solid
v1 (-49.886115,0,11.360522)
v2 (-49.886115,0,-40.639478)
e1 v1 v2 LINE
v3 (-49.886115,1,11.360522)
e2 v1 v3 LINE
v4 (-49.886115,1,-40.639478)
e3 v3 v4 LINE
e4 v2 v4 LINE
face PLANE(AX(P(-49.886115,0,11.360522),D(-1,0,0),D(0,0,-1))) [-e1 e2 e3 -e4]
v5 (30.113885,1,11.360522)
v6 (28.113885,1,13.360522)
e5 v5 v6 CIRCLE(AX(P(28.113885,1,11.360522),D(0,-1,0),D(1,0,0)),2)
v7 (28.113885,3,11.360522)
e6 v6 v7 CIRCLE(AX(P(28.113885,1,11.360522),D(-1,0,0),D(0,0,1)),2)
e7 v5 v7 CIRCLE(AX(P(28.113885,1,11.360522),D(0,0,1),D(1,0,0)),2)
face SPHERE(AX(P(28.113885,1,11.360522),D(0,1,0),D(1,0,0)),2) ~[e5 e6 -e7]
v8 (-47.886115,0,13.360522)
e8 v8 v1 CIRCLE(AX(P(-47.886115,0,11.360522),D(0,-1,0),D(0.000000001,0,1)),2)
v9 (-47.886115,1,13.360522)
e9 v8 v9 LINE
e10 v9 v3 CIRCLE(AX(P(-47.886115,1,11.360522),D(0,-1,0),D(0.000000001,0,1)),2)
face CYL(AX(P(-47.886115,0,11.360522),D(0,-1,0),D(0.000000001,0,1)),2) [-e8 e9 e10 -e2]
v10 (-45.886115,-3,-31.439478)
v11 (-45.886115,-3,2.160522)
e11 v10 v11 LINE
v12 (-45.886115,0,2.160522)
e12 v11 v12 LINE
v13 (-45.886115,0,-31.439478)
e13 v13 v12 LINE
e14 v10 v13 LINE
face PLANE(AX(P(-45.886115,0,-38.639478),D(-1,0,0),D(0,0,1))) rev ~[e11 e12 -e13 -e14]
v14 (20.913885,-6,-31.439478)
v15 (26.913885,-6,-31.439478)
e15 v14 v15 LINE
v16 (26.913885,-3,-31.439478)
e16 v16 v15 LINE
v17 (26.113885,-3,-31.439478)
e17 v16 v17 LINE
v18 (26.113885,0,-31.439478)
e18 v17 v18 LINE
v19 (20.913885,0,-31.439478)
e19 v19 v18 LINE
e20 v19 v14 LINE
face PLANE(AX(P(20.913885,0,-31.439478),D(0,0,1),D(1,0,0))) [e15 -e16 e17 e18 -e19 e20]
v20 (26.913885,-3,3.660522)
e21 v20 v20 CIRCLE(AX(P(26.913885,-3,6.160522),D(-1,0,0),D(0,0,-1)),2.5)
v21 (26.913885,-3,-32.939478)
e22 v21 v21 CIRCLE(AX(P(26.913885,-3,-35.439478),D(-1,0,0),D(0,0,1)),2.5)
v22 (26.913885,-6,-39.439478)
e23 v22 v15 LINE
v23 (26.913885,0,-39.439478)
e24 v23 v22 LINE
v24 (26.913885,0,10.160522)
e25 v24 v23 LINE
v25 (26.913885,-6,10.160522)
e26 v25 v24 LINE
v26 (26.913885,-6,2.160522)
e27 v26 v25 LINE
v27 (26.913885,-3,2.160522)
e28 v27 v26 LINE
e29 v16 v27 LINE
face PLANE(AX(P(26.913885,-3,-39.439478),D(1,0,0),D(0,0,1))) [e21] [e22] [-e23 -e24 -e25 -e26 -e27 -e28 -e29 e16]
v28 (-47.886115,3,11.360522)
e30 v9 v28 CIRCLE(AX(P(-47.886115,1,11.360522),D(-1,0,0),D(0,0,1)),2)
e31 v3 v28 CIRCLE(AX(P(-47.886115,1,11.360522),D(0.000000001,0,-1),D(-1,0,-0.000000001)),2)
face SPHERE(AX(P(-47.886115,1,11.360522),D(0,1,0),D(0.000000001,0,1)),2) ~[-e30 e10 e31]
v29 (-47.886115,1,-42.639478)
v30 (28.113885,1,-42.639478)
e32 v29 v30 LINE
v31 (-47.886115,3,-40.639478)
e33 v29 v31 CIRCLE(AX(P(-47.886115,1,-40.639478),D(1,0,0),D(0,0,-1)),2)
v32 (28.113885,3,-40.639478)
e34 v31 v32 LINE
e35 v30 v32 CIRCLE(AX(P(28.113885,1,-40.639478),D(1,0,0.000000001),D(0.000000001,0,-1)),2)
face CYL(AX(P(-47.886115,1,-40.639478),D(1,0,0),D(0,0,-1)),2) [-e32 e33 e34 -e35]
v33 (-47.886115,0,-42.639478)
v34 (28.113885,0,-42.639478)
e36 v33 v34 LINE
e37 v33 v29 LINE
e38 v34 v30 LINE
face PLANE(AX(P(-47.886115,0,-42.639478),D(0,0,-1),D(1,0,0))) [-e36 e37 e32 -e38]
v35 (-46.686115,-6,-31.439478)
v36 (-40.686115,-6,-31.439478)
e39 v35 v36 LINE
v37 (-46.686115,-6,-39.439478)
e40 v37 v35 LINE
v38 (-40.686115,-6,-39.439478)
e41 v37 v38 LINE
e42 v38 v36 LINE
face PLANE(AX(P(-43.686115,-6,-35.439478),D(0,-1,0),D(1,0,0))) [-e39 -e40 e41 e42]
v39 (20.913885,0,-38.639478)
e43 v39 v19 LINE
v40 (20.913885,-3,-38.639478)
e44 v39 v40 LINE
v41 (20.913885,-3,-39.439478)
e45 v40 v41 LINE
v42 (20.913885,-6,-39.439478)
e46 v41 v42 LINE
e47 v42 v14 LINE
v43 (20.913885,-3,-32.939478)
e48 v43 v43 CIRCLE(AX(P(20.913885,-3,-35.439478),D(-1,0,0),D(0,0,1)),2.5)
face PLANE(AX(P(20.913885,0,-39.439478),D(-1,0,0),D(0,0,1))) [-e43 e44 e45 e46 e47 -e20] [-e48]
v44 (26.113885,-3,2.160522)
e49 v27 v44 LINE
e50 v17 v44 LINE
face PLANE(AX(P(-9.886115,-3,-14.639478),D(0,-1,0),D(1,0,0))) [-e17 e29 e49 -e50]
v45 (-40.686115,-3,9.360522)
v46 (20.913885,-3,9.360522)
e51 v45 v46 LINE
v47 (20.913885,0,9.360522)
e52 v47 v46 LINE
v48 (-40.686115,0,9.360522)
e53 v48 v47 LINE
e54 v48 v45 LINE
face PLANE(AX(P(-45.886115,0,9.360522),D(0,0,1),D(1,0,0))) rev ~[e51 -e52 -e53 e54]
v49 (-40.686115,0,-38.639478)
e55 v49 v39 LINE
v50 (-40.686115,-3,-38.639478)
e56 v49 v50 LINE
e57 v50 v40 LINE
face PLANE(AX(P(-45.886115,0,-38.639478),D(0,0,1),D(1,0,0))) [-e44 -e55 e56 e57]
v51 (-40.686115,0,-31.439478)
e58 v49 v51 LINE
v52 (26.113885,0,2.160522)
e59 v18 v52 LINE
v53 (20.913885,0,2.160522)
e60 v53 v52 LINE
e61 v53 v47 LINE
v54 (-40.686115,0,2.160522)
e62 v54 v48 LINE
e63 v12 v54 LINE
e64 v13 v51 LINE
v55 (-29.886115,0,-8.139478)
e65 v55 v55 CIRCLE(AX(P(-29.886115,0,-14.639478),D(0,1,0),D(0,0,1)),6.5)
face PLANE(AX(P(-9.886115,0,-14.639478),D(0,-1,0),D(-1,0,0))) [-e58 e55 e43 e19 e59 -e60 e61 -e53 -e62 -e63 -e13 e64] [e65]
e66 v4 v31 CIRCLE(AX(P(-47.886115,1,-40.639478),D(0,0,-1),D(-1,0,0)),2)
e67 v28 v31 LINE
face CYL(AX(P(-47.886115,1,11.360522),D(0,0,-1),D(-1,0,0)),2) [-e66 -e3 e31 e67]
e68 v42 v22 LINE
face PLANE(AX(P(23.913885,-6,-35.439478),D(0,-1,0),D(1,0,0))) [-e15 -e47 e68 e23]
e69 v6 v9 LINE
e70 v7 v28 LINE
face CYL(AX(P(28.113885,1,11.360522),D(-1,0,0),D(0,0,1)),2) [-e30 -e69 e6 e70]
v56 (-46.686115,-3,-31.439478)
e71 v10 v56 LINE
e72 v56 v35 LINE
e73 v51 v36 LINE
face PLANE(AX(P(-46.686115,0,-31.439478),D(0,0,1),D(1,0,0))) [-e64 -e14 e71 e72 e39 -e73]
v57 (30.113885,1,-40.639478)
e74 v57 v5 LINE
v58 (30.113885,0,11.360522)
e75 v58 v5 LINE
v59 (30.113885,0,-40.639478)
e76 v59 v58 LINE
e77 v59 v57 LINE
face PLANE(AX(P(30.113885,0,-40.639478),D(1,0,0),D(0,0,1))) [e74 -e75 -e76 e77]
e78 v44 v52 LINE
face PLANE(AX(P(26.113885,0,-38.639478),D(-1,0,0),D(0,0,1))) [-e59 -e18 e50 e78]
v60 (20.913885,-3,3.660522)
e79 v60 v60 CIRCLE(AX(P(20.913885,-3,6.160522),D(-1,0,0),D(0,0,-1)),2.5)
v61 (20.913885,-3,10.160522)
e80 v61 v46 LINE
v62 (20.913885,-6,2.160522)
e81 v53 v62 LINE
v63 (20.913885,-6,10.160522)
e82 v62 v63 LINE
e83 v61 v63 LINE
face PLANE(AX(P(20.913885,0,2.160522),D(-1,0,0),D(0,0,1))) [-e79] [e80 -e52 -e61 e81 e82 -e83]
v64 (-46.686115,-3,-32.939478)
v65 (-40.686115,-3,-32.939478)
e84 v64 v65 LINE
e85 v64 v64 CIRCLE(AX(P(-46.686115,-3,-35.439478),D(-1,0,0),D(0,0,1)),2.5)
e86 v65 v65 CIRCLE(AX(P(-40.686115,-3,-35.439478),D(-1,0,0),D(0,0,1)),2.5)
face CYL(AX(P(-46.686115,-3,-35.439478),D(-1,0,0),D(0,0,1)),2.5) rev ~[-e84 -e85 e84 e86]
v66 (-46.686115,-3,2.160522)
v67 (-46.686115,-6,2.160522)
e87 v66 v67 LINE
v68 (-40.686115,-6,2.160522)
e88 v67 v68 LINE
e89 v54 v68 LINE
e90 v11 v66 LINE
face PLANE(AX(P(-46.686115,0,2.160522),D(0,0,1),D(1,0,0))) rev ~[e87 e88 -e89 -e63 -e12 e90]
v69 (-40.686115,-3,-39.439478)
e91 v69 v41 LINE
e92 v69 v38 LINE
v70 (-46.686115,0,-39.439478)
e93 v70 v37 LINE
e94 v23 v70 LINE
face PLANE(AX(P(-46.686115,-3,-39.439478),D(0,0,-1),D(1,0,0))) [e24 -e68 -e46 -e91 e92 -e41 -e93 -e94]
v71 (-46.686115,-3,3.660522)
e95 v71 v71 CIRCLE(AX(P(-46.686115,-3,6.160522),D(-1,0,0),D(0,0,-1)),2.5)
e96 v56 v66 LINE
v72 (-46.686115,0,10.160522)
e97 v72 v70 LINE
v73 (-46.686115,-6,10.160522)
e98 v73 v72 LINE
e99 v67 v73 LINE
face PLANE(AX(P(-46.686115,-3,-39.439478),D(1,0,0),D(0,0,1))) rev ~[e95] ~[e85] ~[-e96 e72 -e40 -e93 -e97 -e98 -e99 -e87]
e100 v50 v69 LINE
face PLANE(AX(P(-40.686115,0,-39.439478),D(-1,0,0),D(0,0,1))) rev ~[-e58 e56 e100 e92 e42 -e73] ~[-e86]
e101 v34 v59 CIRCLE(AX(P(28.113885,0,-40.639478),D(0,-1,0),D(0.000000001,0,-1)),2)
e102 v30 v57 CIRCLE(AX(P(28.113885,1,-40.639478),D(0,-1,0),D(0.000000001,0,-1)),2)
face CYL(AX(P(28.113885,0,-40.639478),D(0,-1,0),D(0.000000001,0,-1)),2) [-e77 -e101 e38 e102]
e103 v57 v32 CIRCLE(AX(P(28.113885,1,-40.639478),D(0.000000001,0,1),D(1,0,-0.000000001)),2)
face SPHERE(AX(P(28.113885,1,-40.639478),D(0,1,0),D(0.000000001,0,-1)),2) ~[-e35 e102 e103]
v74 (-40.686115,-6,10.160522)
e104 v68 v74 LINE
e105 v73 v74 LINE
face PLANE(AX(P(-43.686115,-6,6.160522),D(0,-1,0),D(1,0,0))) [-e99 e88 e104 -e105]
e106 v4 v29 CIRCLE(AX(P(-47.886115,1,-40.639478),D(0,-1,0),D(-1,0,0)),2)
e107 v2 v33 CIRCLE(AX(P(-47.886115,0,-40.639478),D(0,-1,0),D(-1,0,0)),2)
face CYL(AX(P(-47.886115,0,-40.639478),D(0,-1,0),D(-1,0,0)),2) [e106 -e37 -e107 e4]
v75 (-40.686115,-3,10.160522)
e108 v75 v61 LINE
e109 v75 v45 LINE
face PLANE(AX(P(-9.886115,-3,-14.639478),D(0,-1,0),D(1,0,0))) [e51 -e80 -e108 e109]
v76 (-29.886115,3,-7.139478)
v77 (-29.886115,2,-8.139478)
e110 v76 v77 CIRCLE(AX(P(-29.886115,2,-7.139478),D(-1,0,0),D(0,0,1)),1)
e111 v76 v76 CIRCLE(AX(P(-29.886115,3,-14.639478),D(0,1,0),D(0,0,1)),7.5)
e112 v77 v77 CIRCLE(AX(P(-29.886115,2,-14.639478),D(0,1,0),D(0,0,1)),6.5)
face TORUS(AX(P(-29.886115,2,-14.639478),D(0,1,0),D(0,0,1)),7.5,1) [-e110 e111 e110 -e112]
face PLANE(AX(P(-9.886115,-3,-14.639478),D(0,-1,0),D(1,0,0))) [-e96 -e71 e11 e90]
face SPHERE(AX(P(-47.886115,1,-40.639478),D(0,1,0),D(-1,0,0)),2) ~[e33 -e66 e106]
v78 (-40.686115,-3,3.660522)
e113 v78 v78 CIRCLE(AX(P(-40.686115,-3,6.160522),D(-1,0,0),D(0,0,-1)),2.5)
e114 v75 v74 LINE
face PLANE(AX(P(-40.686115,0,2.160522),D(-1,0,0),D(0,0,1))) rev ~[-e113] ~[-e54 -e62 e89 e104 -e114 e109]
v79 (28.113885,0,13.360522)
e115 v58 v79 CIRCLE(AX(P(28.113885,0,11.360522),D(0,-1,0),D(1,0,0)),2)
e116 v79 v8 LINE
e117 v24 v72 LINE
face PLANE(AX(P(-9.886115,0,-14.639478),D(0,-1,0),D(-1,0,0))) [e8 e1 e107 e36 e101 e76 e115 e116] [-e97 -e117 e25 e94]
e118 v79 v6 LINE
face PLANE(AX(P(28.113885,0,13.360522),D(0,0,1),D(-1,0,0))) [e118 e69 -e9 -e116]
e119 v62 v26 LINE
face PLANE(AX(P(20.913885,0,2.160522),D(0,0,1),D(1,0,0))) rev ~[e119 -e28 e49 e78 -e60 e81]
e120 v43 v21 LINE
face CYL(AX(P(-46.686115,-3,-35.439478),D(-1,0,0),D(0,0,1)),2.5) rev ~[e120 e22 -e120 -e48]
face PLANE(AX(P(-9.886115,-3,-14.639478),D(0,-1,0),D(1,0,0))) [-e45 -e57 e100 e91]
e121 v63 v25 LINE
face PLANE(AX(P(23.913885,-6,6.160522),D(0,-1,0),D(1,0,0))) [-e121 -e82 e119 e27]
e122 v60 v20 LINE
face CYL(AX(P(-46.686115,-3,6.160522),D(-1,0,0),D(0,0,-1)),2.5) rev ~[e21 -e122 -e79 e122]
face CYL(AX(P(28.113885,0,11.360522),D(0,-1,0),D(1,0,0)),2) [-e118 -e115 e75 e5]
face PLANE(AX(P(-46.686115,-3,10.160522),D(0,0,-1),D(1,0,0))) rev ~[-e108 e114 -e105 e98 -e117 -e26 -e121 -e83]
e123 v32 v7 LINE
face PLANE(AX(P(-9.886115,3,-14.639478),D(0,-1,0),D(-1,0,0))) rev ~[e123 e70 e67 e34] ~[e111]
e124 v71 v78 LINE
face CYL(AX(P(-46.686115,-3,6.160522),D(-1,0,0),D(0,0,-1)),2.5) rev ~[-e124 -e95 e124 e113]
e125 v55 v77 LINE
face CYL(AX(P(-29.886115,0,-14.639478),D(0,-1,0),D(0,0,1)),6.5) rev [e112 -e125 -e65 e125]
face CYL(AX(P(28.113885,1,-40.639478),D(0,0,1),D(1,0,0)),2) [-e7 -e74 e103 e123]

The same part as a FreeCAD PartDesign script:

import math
import FreeCAD as App
import Part
import Sketcher
from FreeCAD import Vector


def edges_at(feature, points):
    """Names of the edges that pass closest to the given points."""
    edges = feature.Shape.Edges
    near = lambda p: min(range(len(edges)), key=lambda i: edges[i].distToShape(Part.Vertex(*p))[0])
    return sorted({f"Edge{near(p) + 1}" for p in points})

doc = App.newDocument("Part")
body = doc.addObject("PartDesign::Body", "Body")

# Sketch on XZ plane
sketch1 = body.newObject("Sketcher::SketchObject", "Sketch")
sketch1.AttachmentSupport = (doc.getObject("XZ_Plane"), [""])
sketch1.MapMode = "FlatFace"
sketch1.addGeometry([
    Part.LineSegment(Vector(28.1, -42.6, 0), Vector(-47.9, -42.6, 0)),  # 0
    Part.ArcOfCircle(Part.Circle(Vector(-47.9, -40.6, 0), Vector(0, 0, 1), 2), math.radians(180), math.radians(270)),  # 1
    Part.LineSegment(Vector(-49.9, -40.6, 0), Vector(-49.9, 11.4, 0)),  # 2
    Part.ArcOfCircle(Part.Circle(Vector(-47.9, 11.4, 0), Vector(0, 0, 1), 2), math.radians(90), math.radians(180)),  # 3
    Part.LineSegment(Vector(-47.9, 13.4, 0), Vector(28.1, 13.4, 0)),  # 4
    Part.ArcOfCircle(Part.Circle(Vector(28.1, 11.4, 0), Vector(0, 0, 1), 2), math.radians(0), math.radians(90)),  # 5
    Part.LineSegment(Vector(30.1, 11.4, 0), Vector(30.1, -40.6, 0)),  # 6
    Part.ArcOfCircle(Part.Circle(Vector(28.1, -40.6, 0), Vector(0, 0, 1), 2), math.radians(-90), math.radians(0)),  # 7
    Part.Circle(Vector(-29.9, -14.6, 0), Vector(0, 0, 1), 6.5),  # 8
], False)
sketch1.addConstraint([
    Sketcher.Constraint("Tangent", 0, 2, 1, 2),
    Sketcher.Constraint("Tangent", 1, 1, 2, 1),
    Sketcher.Constraint("Tangent", 2, 2, 3, 2),
    Sketcher.Constraint("Tangent", 3, 1, 4, 1),
    Sketcher.Constraint("Tangent", 4, 2, 5, 2),
    Sketcher.Constraint("Tangent", 5, 1, 6, 1),
    Sketcher.Constraint("Tangent", 6, 2, 7, 2),
    Sketcher.Constraint("Tangent", 7, 1, 0, 1),
    Sketcher.Constraint("Horizontal", 0),
    Sketcher.Constraint("Vertical", 2),
    Sketcher.Constraint("Horizontal", 4),
    Sketcher.Constraint("Vertical", 6),
    Sketcher.Constraint("Equal", 1, 3),
    Sketcher.Constraint("Equal", 3, 5),
    Sketcher.Constraint("Equal", 5, 7),
    Sketcher.Constraint("Diameter", 8, 13.0),
    Sketcher.Constraint("Radius", 1, 2.0),
    Sketcher.Constraint("DistanceX", 0, 2, 0, 1, 76.0),
    Sketcher.Constraint("DistanceY", 2, 1, 2, 2, 52.0),
    Sketcher.Constraint("DistanceX", 1, 3, 8, 3, 18.0),
    Sketcher.Constraint("DistanceY", 1, 3, 8, 3, 26.0),
    Sketcher.Constraint("DistanceY", 1, 3, -1, 1, 40.639478),
    Sketcher.Constraint("DistanceX", 1, 3, -1, 1, 47.886115),
])
pad1 = body.newObject("PartDesign::Pad", "Pad")
pad1.Profile = sketch1
pad1.Length = 3
pad1.Reversed = True
doc.recompute()

fillet = body.newObject("PartDesign::Fillet", "Fillet")
fillet.Base = (pad1, edges_at(pad1, [
    (29.528, 3, -42.054),
    (-9.886, 3, -42.639),
    (-49.3, 3, -42.054),
    (-49.886, 3, -14.639),
    (-49.3, 3, 12.775),
    (-9.886, 3, 13.361),
    (29.528, 3, 12.775),
    (30.114, 3, -14.639),
]))
fillet.Radius = 2

# Sketch on XZ plane
sketch2 = body.newObject("Sketcher::SketchObject", "Sketch001")
sketch2.AttachmentSupport = (doc.getObject("XZ_Plane"), [""])
sketch2.MapMode = "FlatFace"
sketch2.addGeometry([
    Part.LineSegment(Vector(-47, 10, 0), Vector(-47, -40, 0)),  # 0
    Part.LineSegment(Vector(-47, -40, 0), Vector(27, -40, 0)),  # 1
    Part.LineSegment(Vector(27, -40, 0), Vector(27, 10, 0)),  # 2
    Part.LineSegment(Vector(27, 10, 0), Vector(-47, 10, 0)),  # 3
    Part.LineSegment(Vector(26, -39, 0), Vector(-46, -39, 0)),  # 4
    Part.LineSegment(Vector(-46, -39, 0), Vector(-46, 9, 0)),  # 5
    Part.LineSegment(Vector(-46, 9, 0), Vector(26, 9, 0)),  # 6
    Part.LineSegment(Vector(26, 9, 0), Vector(26, -39, 0)),  # 7
], False)
sketch2.addConstraint([
    Sketcher.Constraint("Coincident", 0, 2, 1, 1),
    Sketcher.Constraint("Coincident", 1, 2, 2, 1),
    Sketcher.Constraint("Coincident", 2, 2, 3, 1),
    Sketcher.Constraint("Coincident", 3, 2, 0, 1),
    Sketcher.Constraint("Coincident", 4, 2, 5, 1),
    Sketcher.Constraint("Coincident", 5, 2, 6, 1),
    Sketcher.Constraint("Coincident", 6, 2, 7, 1),
    Sketcher.Constraint("Coincident", 7, 2, 4, 1),
    Sketcher.Constraint("Vertical", 0),
    Sketcher.Constraint("Horizontal", 1),
    Sketcher.Constraint("Vertical", 2),
    Sketcher.Constraint("Horizontal", 3),
    Sketcher.Constraint("Horizontal", 4),
    Sketcher.Constraint("Vertical", 5),
    Sketcher.Constraint("Horizontal", 6),
    Sketcher.Constraint("Vertical", 7),
    Sketcher.Constraint("DistanceX", 1, 1, 1, 2, 74.0),
    Sketcher.Constraint("DistanceX", 4, 2, 4, 1, 72.0),
    Sketcher.Constraint("DistanceY", 0, 2, 0, 1, 50.0),
    Sketcher.Constraint("DistanceY", 5, 1, 5, 2, 48.0),
    Sketcher.Constraint("DistanceX", 0, 2, 4, 2, 1.0),
    Sketcher.Constraint("DistanceY", 0, 2, 4, 2, 1.0),
    Sketcher.Constraint("DistanceY", 0, 2, -1, 1, 39.639478),
    Sketcher.Constraint("DistanceX", 0, 2, -1, 1, 46.886115),
])
pad2 = body.newObject("PartDesign::Pad", "Pad001")
pad2.Profile = sketch2
pad2.Length = 3

# Sketch on XZ plane
sketch3 = body.newObject("Sketcher::SketchObject", "Sketch002")
sketch3.AttachmentSupport = (doc.getObject("XZ_Plane"), [""])
sketch3.MapMode = "FlatFace"
sketch3.AttachmentOffset = App.Placement(Vector(0, 0, 3), App.Rotation())
sketch3.addGeometry([
    Part.LineSegment(Vector(-47, 10, 0), Vector(-47, -40, 0)),  # 0
    Part.LineSegment(Vector(-47, -40, 0), Vector(27, -40, 0)),  # 1
    Part.LineSegment(Vector(27, -40, 0), Vector(27, 10, 0)),  # 2
    Part.LineSegment(Vector(27, 10, 0), Vector(-47, 10, 0)),  # 3
    Part.LineSegment(Vector(27, -39, 0), Vector(-47, -39, 0)),  # 4
    Part.LineSegment(Vector(-47, -39, 0), Vector(-47, 10, 0)),  # 5
    Part.LineSegment(Vector(-47, 10, 0), Vector(27, 10, 0)),  # 6
    Part.LineSegment(Vector(27, 10, 0), Vector(27, -39, 0)),  # 7
], False)
sketch3.addConstraint([
    Sketcher.Constraint("Coincident", 0, 2, 1, 1),
    Sketcher.Constraint("Coincident", 1, 2, 2, 1),
    Sketcher.Constraint("Coincident", 2, 2, 3, 1),
    Sketcher.Constraint("Coincident", 3, 2, 0, 1),
    Sketcher.Constraint("Coincident", 4, 2, 5, 1),
    Sketcher.Constraint("Coincident", 5, 2, 6, 1),
    Sketcher.Constraint("Coincident", 6, 2, 7, 1),
    Sketcher.Constraint("Coincident", 7, 2, 4, 1),
    Sketcher.Constraint("Vertical", 0),
    Sketcher.Constraint("Horizontal", 1),
    Sketcher.Constraint("Vertical", 2),
    Sketcher.Constraint("Horizontal", 3),
    Sketcher.Constraint("Horizontal", 4),
    Sketcher.Constraint("Vertical", 5),
    Sketcher.Constraint("Horizontal", 6),
    Sketcher.Constraint("Vertical", 7),
    Sketcher.Constraint("DistanceX", 1, 1, 1, 2, 74.0),
    Sketcher.Constraint("DistanceY", 0, 2, 0, 1, 50.0),
    Sketcher.Constraint("DistanceX", 4, 2, 4, 1, 73.6),
    Sketcher.Constraint("DistanceY", 5, 1, 5, 2, 49.6),
    Sketcher.Constraint("DistanceX", 0, 2, 4, 2, 0.2),
    Sketcher.Constraint("DistanceY", 0, 2, 4, 2, 0.2),
    Sketcher.Constraint("DistanceY", 0, 2, -1, 1, 39.639478),
    Sketcher.Constraint("DistanceX", 0, 2, -1, 1, 46.886115),
])
pocket1 = body.newObject("PartDesign::Pocket", "Pocket")
pocket1.Profile = sketch3
pocket1.Length = 3
doc.recompute()

fillet2 = body.newObject("PartDesign::Fillet", "Fillet001")
fillet2.Base = (pocket1, edges_at(pocket1, [(-29.886, 3, -21.139)]))
fillet2.Radius = 1

# Sketch on XZ plane
sketch4 = body.newObject("Sketcher::SketchObject", "Sketch003")
sketch4.AttachmentSupport = (doc.getObject("XZ_Plane"), [""])
sketch4.MapMode = "FlatFace"
sketch4.addGeometry([
    Part.LineSegment(Vector(-47, 10, 0), Vector(-47, 2, 0)),  # 0
    Part.LineSegment(Vector(-47, 2, 0), Vector(-41, 2, 0)),  # 1
    Part.LineSegment(Vector(-41, 2, 0), Vector(-41, 10, 0)),  # 2
    Part.LineSegment(Vector(-41, 10, 0), Vector(-47, 10, 0)),  # 3
    Part.LineSegment(Vector(21, 10, 0), Vector(21, 2, 0)),  # 4
    Part.LineSegment(Vector(21, 2, 0), Vector(27, 2, 0)),  # 5
    Part.LineSegment(Vector(27, 2, 0), Vector(27, 10, 0)),  # 6
    Part.LineSegment(Vector(27, 10, 0), Vector(21, 10, 0)),  # 7
    Part.LineSegment(Vector(21, -31, 0), Vector(21, -39, 0)),  # 8
    Part.LineSegment(Vector(21, -39, 0), Vector(27, -39, 0)),  # 9
    Part.LineSegment(Vector(27, -39, 0), Vector(27, -31, 0)),  # 10
    Part.LineSegment(Vector(27, -31, 0), Vector(21, -31, 0)),  # 11
    Part.LineSegment(Vector(-47, -31, 0), Vector(-47, -39, 0)),  # 12
    Part.LineSegment(Vector(-47, -39, 0), Vector(-41, -39, 0)),  # 13
    Part.LineSegment(Vector(-41, -39, 0), Vector(-41, -31, 0)),  # 14
    Part.LineSegment(Vector(-41, -31, 0), Vector(-47, -31, 0)),  # 15
], False)
sketch4.addConstraint([
    Sketcher.Constraint("Coincident", 0, 2, 1, 1),
    Sketcher.Constraint("Coincident", 1, 2, 2, 1),
    Sketcher.Constraint("Coincident", 2, 2, 3, 1),
    Sketcher.Constraint("Coincident", 3, 2, 0, 1),
    Sketcher.Constraint("Coincident", 4, 2, 5, 1),
    Sketcher.Constraint("Coincident", 5, 2, 6, 1),
    Sketcher.Constraint("Coincident", 6, 2, 7, 1),
    Sketcher.Constraint("Coincident", 7, 2, 4, 1),
    Sketcher.Constraint("Coincident", 8, 2, 9, 1),
    Sketcher.Constraint("Coincident", 9, 2, 10, 1),
    Sketcher.Constraint("Coincident", 10, 2, 11, 1),
    Sketcher.Constraint("Coincident", 11, 2, 8, 1),
    Sketcher.Constraint("Coincident", 12, 2, 13, 1),
    Sketcher.Constraint("Coincident", 13, 2, 14, 1),
    Sketcher.Constraint("Coincident", 14, 2, 15, 1),
    Sketcher.Constraint("Coincident", 15, 2, 12, 1),
    Sketcher.Constraint("Vertical", 0),
    Sketcher.Constraint("Horizontal", 1),
    Sketcher.Constraint("Vertical", 2),
    Sketcher.Constraint("Horizontal", 3),
    Sketcher.Constraint("Vertical", 4),
    Sketcher.Constraint("Horizontal", 5),
    Sketcher.Constraint("Vertical", 6),
    Sketcher.Constraint("Horizontal", 7),
    Sketcher.Constraint("Vertical", 8),
    Sketcher.Constraint("Horizontal", 9),
    Sketcher.Constraint("Vertical", 10),
    Sketcher.Constraint("Horizontal", 11),
    Sketcher.Constraint("Vertical", 12),
    Sketcher.Constraint("Horizontal", 13),
    Sketcher.Constraint("Vertical", 14),
    Sketcher.Constraint("Horizontal", 15),
    Sketcher.Constraint("Horizontal", 1, 2, 4, 2),
    Sketcher.Constraint("Horizontal", 3, 2, 6, 2),
    Sketcher.Constraint("Horizontal", 9, 2, 12, 2),
    Sketcher.Constraint("Horizontal", 11, 2, 14, 2),
    Sketcher.Constraint("Vertical", 7, 2, 8, 2),
    Sketcher.Constraint("Vertical", 6, 2, 9, 2),
    Sketcher.Constraint("Vertical", 3, 2, 12, 2),
    Sketcher.Constraint("Vertical", 2, 2, 13, 2),
    Sketcher.Constraint("Equal", 3, 5),
    Sketcher.Constraint("Equal", 6, 8),
    Sketcher.Constraint("DistanceX", 1, 1, 1, 2, 6.0),
    Sketcher.Constraint("DistanceY", 0, 2, 0, 1, 8.0),
    Sketcher.Constraint("DistanceX", 1, 2, 4, 2, 61.6),
    Sketcher.Constraint("DistanceY", 8, 2, 4, 2, 41.6),
    Sketcher.Constraint("DistanceY", -1, 1, 0, 2, 2.160522),
    Sketcher.Constraint("DistanceX", 0, 2, -1, 1, 46.686115),
])
pad3 = body.newObject("PartDesign::Pad", "Pad002")
pad3.Profile = sketch4
pad3.Length = 6

# Sketch on YZ plane
sketch5 = body.newObject("Sketcher::SketchObject", "Sketch004")
sketch5.AttachmentSupport = (doc.getObject("YZ_Plane"), [""])
sketch5.MapMode = "FlatFace"
sketch5.AttachmentOffset = App.Placement(Vector(0, 0, -46.686115), App.Rotation())
sketch5.addGeometry([
    Part.Circle(Vector(-3, -35.4, 0), Vector(0, 0, 1), 2.5),
    Part.Circle(Vector(-3, 6.2, 0), Vector(0, 0, 1), 2.5),
], False)
sketch5.addConstraint([
    Sketcher.Constraint("Equal", 0, 1),
    Sketcher.Constraint("Vertical", 0, 3, 1, 3),
    Sketcher.Constraint("Diameter", 0, 5.0),
    Sketcher.Constraint("DistanceX", 0, 3, -1, 1, 3.0),
    Sketcher.Constraint("DistanceY", 0, 3, 1, 3, 41.6),
    Sketcher.Constraint("DistanceY", 0, 3, -1, 1, 35.439478),
])
pocket2 = body.newObject("PartDesign::Pocket", "Pocket001")
pocket2.Profile = sketch5
pocket2.Type = "ThroughAll"
pocket2.Reversed = True

doc.recompute()
